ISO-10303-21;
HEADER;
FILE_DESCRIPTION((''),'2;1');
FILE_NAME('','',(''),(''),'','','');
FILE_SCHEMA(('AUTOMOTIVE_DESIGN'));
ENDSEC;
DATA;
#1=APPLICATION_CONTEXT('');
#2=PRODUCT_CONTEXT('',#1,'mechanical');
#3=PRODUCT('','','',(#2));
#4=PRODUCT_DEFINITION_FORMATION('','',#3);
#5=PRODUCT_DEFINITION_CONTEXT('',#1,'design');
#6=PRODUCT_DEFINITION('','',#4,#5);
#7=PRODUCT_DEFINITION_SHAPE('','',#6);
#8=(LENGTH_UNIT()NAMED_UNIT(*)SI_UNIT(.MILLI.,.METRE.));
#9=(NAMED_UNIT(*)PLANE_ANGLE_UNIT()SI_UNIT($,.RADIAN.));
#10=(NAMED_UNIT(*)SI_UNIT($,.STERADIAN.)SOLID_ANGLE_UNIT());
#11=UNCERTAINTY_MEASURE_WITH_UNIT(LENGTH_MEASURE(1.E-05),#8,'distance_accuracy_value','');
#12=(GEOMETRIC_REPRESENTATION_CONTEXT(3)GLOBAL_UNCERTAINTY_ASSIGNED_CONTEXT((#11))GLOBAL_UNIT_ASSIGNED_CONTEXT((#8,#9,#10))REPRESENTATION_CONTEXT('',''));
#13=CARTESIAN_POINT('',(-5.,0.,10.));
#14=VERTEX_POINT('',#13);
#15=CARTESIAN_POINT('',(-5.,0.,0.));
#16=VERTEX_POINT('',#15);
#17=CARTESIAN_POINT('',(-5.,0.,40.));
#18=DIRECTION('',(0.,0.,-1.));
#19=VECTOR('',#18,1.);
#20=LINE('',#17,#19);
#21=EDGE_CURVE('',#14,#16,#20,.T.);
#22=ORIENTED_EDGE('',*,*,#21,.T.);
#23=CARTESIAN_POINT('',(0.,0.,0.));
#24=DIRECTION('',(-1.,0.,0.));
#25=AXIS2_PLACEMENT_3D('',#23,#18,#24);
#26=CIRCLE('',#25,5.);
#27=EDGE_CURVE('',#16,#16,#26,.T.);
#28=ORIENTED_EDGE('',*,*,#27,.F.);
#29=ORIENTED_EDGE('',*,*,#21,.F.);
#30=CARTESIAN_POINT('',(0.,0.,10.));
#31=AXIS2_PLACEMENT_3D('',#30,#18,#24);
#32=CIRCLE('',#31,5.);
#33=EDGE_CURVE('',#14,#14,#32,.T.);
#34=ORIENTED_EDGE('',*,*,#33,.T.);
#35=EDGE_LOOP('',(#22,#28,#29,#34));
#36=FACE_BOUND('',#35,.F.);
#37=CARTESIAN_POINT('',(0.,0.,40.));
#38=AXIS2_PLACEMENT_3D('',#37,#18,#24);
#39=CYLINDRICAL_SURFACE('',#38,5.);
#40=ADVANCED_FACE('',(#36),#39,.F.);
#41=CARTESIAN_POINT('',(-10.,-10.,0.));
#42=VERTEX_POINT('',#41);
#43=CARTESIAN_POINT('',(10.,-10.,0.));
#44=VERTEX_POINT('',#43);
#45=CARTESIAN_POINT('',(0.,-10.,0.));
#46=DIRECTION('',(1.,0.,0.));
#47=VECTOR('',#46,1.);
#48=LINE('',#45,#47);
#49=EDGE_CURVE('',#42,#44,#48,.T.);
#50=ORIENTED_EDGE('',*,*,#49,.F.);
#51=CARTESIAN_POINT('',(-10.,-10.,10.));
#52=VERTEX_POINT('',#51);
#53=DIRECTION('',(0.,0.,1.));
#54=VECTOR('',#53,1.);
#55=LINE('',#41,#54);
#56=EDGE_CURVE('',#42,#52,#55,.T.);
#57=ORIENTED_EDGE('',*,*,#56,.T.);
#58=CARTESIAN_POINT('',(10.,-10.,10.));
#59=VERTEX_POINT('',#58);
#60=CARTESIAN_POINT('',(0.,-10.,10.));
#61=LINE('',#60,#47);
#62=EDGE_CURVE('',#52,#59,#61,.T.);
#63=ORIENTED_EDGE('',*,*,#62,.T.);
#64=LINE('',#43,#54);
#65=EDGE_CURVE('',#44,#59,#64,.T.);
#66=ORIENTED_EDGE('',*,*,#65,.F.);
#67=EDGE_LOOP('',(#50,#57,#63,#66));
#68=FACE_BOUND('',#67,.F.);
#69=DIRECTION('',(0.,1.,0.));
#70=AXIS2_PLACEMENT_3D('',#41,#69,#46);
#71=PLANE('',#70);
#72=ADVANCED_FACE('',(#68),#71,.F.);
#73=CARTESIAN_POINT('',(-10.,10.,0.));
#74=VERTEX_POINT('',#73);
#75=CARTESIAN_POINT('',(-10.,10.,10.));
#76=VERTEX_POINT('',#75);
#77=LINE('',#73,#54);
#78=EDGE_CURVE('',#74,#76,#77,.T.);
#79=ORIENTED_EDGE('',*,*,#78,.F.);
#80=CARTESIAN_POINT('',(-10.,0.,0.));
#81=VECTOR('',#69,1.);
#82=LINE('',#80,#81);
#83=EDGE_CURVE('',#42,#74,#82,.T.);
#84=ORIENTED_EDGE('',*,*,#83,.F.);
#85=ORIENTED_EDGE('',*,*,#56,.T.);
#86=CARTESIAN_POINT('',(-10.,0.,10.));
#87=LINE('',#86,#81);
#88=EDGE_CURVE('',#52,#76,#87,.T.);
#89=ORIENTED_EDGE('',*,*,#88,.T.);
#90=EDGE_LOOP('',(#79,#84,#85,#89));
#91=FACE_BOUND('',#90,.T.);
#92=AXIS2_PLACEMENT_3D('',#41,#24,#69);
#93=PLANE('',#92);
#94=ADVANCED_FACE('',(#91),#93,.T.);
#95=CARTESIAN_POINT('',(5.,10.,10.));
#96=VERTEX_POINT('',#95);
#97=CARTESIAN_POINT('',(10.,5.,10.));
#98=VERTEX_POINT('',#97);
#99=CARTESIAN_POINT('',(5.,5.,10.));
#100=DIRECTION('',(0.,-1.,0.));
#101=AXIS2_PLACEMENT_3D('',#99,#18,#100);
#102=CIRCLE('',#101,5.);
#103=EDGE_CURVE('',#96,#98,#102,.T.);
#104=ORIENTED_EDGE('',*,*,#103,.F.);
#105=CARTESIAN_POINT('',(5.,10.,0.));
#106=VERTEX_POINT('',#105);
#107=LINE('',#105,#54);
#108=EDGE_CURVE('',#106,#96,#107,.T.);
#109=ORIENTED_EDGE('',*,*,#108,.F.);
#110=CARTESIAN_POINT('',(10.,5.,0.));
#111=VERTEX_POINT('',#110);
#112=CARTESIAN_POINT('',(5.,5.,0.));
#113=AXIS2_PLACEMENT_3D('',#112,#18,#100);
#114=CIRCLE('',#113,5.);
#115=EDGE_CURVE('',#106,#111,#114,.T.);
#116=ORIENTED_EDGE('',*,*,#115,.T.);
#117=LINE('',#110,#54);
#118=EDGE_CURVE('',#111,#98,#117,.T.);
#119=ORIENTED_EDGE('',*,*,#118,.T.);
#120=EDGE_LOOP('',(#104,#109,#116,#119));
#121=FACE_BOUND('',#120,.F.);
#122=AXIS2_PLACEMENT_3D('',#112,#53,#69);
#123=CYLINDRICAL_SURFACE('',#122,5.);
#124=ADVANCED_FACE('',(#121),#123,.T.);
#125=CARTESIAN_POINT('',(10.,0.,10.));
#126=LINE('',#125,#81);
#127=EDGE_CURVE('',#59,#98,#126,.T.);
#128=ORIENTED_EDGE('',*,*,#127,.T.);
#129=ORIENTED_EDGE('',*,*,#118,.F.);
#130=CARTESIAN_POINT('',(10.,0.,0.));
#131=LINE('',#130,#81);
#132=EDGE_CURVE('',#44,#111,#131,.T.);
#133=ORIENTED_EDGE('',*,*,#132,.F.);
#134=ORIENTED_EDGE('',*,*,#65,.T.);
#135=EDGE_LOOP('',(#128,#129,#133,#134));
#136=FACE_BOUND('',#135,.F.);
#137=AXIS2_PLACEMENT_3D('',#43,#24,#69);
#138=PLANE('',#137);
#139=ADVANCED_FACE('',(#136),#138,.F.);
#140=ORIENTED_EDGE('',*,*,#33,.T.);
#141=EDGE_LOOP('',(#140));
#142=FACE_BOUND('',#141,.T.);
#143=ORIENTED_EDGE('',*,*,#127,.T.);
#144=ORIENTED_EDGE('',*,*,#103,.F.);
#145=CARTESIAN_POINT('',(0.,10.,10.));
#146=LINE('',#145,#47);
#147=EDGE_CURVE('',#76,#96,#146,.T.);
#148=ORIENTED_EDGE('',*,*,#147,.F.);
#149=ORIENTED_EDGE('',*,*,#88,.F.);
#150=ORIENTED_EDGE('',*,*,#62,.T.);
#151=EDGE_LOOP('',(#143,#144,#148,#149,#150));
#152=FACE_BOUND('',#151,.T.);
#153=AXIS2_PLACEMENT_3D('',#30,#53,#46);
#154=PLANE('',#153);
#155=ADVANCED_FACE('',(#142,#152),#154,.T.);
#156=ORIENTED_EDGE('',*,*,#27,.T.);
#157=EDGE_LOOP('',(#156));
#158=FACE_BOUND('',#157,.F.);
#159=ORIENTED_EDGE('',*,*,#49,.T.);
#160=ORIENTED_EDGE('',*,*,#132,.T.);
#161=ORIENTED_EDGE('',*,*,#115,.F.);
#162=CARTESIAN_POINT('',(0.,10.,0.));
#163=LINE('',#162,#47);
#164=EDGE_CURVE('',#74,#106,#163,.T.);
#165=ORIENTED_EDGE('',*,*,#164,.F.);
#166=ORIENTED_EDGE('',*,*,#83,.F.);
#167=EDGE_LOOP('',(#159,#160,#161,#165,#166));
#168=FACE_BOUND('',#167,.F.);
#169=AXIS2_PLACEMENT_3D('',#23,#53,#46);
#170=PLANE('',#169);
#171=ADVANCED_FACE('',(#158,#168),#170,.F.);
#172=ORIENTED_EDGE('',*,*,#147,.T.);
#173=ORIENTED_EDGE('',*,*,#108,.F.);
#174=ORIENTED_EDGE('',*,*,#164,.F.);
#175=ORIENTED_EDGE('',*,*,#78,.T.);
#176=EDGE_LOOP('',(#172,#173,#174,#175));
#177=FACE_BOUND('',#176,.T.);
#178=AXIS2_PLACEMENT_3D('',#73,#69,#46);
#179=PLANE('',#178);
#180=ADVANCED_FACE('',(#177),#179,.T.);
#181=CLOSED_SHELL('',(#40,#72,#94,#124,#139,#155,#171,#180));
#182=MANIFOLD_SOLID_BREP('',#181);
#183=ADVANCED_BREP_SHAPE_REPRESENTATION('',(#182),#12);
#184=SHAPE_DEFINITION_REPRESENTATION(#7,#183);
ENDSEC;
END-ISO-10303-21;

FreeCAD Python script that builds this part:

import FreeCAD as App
import Part
import Sketcher
from FreeCAD import Vector


def edges_at(feature, points):
    """Names of the edges that pass closest to the given points."""
    edges = feature.Shape.Edges
    near = lambda p: min(range(len(edges)), key=lambda i: edges[i].distToShape(Part.Vertex(*p))[0])
    return sorted({f"Edge{near(p) + 1}" for p in points})


def add_polygon(sketch, points):
    """Adds a closed chain of lines whose ends are joined by coincident constraints."""
    first, n = sketch.GeometryCount, len(points)
    for a, b in zip(points, points[1:] + points[:1]):
        sketch.addGeometry(Part.LineSegment(App.Vector(*a, 0), App.Vector(*b, 0)), False)
    for i in range(n):
        sketch.addConstraint(Sketcher.Constraint("Coincident", first + i, 2, first + (i + 1) % n, 1))

doc = App.newDocument("Part")
body = doc.addObject("PartDesign::Body", "Body")

# Sketch on XY plane
sketch1 = doc.addObject("Sketcher::SketchObject", "Sketch")
body.addObject(sketch1)
sketch1.AttachmentSupport = (doc.XY_Plane, [""])
sketch1.MapMode = "FlatFace"
add_polygon(sketch1, [(-10, 10), (-10, -10), (10, -10), (10, 10)])  # lines 0-3
sketch1.addConstraint(Sketcher.Constraint("Vertical", 0))
sketch1.addConstraint(Sketcher.Constraint("Horizontal", 1))
sketch1.addConstraint(Sketcher.Constraint("Vertical", 2))
sketch1.addConstraint(Sketcher.Constraint("Horizontal", 3))
sketch1.addConstraint(Sketcher.Constraint("Symmetric", 0, 2, 2, 2, -1, 1))
sketch1.addConstraint(Sketcher.Constraint("Equal", 3, 0))
sketch1.addConstraint(Sketcher.Constraint("DistanceX", 1, 1, 1, 2, 20.0))
pad1 = doc.addObject("PartDesign::Pad", "Pad")
body.addObject(pad1)
pad1.Profile = sketch1
pad1.Length = 10

# Sketch on XY plane
sketch2 = doc.addObject("Sketcher::SketchObject", "Sketch001")
body.addObject(sketch2)
sketch2.AttachmentSupport = (doc.XY_Plane, [""])
sketch2.MapMode = "FlatFace"
sketch2.AttachmentOffset = App.Placement(Vector(0, 0, 10), App.Rotation())
sketch2.addGeometry(Part.Circle(Vector(0, 0, 0), Vector(0, 0, 1), 5), False)
sketch2.addConstraint(Sketcher.Constraint("Coincident", 0, 3, -1, 1))
sketch2.addConstraint(Sketcher.Constraint("Diameter", 0, 10.0))
doc.recompute()
hole = doc.addObject("PartDesign::Hole", "Hole")
body.addObject(hole)
hole.Profile = sketch2
hole.ThreadType = "None"
hole.Diameter = 10
hole.DepthType = "ThroughAll"
doc.recompute()

fillet = doc.addObject("PartDesign::Fillet", "Fillet")
body.addObject(fillet)
fillet.Base = (hole, edges_at(hole, [(10, 10, 5)]))
fillet.Radius = 5

doc.recompute()
